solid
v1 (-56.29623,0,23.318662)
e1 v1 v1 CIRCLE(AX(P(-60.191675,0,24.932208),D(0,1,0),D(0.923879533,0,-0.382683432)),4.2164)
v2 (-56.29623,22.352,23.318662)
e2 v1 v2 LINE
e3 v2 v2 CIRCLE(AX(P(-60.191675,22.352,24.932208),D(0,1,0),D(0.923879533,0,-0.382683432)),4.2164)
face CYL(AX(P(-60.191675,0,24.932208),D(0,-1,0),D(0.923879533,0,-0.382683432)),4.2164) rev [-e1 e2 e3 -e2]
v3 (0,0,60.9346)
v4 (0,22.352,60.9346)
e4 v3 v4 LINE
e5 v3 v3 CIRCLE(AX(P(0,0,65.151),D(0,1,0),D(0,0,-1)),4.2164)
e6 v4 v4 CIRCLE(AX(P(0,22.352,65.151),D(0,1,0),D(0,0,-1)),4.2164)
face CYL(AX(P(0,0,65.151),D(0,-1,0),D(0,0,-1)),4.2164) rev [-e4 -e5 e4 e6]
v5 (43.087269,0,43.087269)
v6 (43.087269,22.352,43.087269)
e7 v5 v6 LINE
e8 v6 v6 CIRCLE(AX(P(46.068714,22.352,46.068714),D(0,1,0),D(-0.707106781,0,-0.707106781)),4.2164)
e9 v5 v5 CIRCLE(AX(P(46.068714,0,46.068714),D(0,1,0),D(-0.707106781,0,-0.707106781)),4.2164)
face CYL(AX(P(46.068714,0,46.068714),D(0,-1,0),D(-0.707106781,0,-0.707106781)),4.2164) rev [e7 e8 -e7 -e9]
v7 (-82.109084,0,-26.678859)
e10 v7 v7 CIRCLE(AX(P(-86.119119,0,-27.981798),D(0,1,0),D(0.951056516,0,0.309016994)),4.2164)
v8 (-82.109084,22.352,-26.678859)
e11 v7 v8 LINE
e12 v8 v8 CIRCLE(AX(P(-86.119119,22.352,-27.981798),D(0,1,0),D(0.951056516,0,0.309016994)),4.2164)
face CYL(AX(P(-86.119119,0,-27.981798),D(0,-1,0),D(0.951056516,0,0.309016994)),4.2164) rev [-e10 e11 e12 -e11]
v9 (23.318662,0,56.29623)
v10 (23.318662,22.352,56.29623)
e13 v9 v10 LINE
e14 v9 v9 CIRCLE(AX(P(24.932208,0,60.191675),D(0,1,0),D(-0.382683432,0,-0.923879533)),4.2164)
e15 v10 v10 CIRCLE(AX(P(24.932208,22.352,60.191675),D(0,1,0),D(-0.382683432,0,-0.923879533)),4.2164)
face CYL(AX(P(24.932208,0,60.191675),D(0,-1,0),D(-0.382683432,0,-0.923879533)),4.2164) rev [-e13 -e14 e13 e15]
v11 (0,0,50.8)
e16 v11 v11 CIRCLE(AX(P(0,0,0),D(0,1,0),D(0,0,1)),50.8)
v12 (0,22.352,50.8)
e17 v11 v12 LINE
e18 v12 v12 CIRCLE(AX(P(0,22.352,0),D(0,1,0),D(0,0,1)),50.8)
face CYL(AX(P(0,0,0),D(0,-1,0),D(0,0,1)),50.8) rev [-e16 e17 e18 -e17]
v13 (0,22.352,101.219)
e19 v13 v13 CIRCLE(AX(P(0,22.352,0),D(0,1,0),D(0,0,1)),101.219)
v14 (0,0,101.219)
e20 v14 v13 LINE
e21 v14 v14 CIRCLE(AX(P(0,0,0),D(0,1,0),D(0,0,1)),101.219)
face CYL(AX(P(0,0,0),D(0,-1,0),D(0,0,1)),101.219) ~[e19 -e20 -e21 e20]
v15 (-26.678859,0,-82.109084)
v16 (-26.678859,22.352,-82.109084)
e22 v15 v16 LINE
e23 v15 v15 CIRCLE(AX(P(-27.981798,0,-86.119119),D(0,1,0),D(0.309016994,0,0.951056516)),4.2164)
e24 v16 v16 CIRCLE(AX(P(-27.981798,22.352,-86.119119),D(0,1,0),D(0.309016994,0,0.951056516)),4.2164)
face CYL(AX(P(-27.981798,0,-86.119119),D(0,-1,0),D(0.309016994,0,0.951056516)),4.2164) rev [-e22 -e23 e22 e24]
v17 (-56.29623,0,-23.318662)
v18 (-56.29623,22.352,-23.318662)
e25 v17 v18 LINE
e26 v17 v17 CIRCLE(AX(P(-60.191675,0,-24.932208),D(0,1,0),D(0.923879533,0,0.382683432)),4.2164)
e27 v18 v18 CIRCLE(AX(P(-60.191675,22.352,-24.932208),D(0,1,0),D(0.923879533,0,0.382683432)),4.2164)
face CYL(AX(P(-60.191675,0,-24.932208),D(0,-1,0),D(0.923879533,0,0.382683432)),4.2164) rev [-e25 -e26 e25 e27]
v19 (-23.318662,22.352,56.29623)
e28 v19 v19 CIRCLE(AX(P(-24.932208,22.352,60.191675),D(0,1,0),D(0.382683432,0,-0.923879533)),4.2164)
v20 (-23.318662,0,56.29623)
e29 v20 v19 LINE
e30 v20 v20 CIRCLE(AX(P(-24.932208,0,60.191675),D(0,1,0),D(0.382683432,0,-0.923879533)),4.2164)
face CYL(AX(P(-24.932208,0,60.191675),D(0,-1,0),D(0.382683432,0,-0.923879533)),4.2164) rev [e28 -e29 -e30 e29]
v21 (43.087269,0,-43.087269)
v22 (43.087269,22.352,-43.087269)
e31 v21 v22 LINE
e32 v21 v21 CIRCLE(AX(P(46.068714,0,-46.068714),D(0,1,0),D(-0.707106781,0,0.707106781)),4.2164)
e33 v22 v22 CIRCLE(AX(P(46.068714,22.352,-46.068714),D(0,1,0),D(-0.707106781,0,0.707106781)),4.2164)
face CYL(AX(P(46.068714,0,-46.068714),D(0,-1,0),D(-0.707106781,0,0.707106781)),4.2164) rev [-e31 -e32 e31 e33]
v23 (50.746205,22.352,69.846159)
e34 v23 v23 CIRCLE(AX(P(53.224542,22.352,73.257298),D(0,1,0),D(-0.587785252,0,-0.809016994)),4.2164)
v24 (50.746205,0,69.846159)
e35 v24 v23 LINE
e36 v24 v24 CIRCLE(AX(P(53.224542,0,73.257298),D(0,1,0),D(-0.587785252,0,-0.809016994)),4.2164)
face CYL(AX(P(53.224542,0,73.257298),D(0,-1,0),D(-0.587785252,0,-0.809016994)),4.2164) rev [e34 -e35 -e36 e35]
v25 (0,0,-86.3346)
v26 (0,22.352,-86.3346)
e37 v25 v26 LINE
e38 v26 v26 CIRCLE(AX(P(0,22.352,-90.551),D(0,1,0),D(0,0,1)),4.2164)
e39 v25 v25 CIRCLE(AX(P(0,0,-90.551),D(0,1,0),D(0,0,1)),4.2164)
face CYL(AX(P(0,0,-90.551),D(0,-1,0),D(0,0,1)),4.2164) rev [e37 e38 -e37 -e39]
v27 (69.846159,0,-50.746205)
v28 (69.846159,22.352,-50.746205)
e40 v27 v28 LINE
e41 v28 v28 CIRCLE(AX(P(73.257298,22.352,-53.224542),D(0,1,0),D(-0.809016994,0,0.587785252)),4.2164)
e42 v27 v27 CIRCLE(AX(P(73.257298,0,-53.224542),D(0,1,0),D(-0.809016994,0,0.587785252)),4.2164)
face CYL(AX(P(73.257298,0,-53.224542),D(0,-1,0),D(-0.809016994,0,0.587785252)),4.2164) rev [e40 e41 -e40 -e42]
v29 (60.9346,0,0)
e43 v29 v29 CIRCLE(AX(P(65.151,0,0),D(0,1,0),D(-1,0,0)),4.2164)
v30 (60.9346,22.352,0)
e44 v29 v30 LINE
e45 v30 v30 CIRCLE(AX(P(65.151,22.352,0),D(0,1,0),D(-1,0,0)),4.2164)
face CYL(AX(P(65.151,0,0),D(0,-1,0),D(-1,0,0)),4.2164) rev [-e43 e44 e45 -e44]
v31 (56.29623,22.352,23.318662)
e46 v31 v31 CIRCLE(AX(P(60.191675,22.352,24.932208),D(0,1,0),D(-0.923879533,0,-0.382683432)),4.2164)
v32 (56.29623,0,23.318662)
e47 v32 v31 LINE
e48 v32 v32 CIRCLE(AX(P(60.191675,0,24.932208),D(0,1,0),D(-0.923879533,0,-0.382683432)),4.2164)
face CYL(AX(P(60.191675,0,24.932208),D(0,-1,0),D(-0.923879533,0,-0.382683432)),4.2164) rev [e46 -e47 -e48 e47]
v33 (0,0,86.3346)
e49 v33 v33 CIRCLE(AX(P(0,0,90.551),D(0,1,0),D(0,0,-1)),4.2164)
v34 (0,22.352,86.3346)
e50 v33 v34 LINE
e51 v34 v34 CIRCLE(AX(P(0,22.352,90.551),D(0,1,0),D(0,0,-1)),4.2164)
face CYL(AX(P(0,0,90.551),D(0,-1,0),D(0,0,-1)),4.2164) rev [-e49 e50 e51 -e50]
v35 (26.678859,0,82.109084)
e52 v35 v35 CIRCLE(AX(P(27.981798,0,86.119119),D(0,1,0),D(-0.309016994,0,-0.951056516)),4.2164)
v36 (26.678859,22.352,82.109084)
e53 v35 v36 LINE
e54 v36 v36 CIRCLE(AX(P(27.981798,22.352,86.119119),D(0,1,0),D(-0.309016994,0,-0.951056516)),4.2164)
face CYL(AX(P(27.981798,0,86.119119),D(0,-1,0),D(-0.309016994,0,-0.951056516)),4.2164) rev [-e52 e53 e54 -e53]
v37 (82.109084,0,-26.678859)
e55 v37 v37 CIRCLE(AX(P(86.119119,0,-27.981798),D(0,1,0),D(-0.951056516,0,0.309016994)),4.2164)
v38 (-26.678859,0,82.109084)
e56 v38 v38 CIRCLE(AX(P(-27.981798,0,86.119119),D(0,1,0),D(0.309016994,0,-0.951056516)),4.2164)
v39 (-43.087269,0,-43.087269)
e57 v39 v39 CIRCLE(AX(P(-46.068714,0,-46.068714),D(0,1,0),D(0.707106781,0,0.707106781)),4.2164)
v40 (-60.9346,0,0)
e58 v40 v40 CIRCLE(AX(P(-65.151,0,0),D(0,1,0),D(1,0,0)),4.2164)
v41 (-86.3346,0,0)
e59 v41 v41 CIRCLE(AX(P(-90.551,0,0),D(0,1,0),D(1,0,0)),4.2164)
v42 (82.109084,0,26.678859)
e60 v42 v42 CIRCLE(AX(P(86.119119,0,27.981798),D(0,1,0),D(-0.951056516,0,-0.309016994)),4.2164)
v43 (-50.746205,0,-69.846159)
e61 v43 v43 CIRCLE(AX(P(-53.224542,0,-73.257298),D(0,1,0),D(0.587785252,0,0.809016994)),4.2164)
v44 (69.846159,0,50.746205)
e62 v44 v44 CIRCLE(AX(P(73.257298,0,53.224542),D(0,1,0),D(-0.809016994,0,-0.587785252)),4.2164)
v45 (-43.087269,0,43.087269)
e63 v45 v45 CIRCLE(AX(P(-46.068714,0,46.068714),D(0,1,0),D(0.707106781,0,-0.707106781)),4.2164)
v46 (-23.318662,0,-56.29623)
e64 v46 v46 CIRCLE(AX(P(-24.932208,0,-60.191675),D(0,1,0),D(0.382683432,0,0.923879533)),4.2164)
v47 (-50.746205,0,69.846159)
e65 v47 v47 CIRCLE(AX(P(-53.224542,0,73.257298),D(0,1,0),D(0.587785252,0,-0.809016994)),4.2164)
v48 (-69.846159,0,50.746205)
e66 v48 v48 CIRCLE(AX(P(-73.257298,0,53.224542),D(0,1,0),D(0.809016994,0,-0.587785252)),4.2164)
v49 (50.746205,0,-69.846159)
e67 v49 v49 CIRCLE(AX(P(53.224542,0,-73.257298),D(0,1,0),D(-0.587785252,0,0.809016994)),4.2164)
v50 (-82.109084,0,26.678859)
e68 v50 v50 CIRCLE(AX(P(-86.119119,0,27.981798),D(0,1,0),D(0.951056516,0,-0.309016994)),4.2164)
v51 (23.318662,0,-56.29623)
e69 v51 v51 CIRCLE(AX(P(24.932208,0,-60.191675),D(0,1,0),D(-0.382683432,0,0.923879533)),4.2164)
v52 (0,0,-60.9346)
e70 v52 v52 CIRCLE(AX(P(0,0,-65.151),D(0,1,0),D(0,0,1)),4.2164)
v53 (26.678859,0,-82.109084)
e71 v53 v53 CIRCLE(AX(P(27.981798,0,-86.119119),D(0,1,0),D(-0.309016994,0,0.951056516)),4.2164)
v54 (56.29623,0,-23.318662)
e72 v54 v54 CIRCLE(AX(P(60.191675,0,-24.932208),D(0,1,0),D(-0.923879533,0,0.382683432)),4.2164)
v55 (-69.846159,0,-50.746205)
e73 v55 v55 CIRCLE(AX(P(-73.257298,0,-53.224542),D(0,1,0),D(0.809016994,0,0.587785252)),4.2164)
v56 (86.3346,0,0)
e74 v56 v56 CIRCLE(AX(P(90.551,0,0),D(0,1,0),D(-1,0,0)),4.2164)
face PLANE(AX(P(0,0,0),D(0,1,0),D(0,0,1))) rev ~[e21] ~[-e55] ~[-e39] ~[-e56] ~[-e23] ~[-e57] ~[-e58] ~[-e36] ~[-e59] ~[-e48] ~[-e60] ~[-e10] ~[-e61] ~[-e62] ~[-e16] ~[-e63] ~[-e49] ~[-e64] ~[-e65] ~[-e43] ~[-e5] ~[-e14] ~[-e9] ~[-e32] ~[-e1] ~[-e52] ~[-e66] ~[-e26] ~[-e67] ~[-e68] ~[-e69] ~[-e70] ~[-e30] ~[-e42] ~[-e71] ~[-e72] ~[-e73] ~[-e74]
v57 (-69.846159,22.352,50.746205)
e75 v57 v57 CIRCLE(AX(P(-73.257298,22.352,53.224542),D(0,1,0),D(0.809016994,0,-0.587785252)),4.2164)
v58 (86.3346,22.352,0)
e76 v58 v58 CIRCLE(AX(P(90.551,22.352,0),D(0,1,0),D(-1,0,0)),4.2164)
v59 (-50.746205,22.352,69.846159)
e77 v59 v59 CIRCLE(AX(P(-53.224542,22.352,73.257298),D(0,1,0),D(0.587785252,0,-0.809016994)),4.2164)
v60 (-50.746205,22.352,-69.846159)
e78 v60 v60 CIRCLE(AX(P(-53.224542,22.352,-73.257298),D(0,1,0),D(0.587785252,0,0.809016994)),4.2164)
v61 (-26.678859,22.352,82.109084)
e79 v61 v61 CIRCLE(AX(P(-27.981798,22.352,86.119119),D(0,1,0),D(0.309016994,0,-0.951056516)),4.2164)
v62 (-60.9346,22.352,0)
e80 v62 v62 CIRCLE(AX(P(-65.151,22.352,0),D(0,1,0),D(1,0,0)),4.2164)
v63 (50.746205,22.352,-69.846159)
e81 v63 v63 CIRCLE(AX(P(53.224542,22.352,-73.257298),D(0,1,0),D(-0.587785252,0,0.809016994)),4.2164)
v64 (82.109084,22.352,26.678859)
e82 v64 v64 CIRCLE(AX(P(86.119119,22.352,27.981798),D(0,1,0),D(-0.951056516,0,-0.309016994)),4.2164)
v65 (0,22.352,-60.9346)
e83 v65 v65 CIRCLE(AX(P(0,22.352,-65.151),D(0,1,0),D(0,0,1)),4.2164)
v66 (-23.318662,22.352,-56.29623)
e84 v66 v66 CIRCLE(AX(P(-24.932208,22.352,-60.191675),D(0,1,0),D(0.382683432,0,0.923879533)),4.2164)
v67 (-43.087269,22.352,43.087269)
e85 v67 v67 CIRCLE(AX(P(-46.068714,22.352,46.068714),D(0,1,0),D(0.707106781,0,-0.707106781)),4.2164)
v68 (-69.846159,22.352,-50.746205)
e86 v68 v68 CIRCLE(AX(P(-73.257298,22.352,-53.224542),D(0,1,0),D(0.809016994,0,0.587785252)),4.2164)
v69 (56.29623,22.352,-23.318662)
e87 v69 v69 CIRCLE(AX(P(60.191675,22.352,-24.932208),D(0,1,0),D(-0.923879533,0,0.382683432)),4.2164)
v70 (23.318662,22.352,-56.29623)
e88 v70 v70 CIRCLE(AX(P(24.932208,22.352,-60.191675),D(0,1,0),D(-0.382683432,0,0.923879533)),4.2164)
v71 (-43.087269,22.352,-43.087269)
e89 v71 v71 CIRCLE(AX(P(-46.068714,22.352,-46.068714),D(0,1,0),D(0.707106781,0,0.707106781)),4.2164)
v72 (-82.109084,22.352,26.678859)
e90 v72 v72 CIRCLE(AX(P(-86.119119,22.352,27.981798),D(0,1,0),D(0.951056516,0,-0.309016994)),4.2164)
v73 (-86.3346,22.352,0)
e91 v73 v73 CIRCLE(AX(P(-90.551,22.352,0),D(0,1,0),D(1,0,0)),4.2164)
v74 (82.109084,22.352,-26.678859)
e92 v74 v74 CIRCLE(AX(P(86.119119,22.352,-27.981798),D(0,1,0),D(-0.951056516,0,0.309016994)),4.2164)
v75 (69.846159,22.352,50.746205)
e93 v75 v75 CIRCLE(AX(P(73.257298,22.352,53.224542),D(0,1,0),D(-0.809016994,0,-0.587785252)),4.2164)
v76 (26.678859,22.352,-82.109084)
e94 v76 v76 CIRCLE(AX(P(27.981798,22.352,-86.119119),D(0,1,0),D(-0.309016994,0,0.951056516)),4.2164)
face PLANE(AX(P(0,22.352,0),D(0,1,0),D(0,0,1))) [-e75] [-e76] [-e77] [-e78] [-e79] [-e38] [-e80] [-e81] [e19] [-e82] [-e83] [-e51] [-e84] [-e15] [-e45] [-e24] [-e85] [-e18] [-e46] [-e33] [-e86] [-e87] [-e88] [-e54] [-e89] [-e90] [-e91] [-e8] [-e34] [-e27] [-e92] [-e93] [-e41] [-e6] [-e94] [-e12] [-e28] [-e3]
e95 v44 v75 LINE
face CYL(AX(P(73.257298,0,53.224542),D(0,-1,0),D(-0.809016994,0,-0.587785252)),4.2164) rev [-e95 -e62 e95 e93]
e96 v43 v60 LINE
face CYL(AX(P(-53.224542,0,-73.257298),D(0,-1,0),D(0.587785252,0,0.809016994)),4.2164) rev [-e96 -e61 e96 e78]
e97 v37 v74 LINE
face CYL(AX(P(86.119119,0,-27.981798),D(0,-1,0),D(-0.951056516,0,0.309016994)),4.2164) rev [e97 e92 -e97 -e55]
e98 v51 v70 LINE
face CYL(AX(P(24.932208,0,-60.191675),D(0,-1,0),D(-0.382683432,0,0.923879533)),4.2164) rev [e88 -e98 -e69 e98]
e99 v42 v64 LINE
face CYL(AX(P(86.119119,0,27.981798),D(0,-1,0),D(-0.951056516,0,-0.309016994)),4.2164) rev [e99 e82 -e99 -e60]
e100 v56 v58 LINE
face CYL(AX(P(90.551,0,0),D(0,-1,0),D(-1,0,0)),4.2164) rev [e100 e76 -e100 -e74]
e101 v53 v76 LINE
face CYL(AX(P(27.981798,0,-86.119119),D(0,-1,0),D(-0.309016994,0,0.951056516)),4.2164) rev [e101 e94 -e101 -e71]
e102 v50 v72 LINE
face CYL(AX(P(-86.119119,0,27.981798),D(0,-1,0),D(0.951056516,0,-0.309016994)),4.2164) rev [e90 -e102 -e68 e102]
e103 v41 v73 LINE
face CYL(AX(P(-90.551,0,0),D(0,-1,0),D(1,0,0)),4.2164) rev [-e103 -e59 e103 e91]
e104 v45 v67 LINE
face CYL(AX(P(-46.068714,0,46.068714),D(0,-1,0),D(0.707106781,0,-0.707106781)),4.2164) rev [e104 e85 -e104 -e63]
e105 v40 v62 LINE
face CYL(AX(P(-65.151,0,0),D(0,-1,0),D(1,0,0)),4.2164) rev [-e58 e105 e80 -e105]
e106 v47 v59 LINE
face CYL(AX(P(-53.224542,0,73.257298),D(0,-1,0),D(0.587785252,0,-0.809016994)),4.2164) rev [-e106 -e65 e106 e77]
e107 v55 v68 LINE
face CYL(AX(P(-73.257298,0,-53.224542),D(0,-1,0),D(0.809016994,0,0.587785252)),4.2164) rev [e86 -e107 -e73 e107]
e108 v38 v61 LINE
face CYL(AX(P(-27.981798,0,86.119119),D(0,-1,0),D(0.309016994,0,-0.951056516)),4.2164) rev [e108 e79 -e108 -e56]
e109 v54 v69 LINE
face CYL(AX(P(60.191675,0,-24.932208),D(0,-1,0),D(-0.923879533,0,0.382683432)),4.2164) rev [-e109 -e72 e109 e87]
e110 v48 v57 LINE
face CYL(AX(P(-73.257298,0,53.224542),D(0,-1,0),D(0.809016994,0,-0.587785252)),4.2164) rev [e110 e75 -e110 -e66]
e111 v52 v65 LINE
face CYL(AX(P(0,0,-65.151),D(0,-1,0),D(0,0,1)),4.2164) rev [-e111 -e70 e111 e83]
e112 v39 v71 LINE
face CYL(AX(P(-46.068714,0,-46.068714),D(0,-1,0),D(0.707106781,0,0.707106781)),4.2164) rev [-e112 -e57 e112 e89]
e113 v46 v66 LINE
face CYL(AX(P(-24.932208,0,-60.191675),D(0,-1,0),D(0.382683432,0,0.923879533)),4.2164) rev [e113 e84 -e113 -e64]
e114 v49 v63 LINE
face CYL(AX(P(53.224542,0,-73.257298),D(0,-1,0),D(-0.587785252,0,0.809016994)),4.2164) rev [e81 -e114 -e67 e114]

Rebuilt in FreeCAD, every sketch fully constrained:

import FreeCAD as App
import Part
import Sketcher
Q = App.Units.Quantity

doc = App.newDocument("Part")
body = doc.addObject("PartDesign::Body", "Body")

# Sketch on XZ plane
sketch1 = body.newObject("Sketcher::SketchObject", "Sketch")
sketch1.AttachmentSupport = (doc.getObject("XZ_Plane"), [""])
sketch1.MapMode = "FlatFace"
sketch1.addGeometry(Part.Circle(App.Vector(0, 0, 0), App.Vector(0, 0, 1), 101), False)
sketch1.addConstraint([
    Sketcher.Constraint("Coincident", 0, 3, -1, 1),
    Sketcher.Constraint("Diameter", 0, Q("7.97 in")),
])
pad1 = body.newObject("PartDesign::Pad", "Pad")
pad1.Profile = sketch1
pad1.Length = Q("0.88 in")
pad1.Reversed = True

# Sketch on XZ plane
sketch2 = body.newObject("Sketcher::SketchObject", "Sketch001")
sketch2.AttachmentSupport = (doc.getObject("XZ_Plane"), [""])
sketch2.MapMode = "FlatFace"
sketch2.addGeometry(Part.Circle(App.Vector(0, 0, 0), App.Vector(0, 0, 1), 51), False)
sketch2.addConstraint([
    Sketcher.Constraint("Coincident", 0, 3, -1, 1),
    Sketcher.Constraint("Diameter", 0, Q("4 in")),
])
pocket1 = body.newObject("PartDesign::Pocket", "Pocket")
pocket1.Profile = sketch2
pocket1.Length = Q("0.88 in")

# Sketch on XZ plane
sketch3 = body.newObject("Sketcher::SketchObject", "Sketch002")
sketch3.AttachmentSupport = (doc.getObject("XZ_Plane"), [""])
sketch3.MapMode = "FlatFace"
sketch3.addGeometry(Part.Circle(App.Vector(0, -65.2, 0), App.Vector(0, 0, 1), 4.2), False)
sketch3.addConstraint([
    Sketcher.Constraint("PointOnObject", 0, 3, -2),
    Sketcher.Constraint("Diameter", 0, Q("0.332 in")),
    Sketcher.Constraint("DistanceY", 0, 3, -1, 1, Q("2.565 in")),
])
pocket2 = body.newObject("PartDesign::Pocket", "Pocket001")
pocket2.Profile = sketch3
pocket2.Length = Q("0.88 in")
doc.recompute()

polarpattern = body.newObject("PartDesign::PolarPattern", "PolarPattern")
polarpattern.Originals = [pocket2]
polarpattern.Axis = (doc.getObject("Y_Axis"), [""])
polarpattern.Angle = 360
polarpattern.Occurrences = 16
body.Tip = polarpattern

# Sketch on XZ plane
sketch4 = body.newObject("Sketcher::SketchObject", "Sketch003")
sketch4.AttachmentSupport = (doc.getObject("XZ_Plane"), [""])
sketch4.MapMode = "FlatFace"
sketch4.addGeometry(Part.Circle(App.Vector(0, -90.6, 0), App.Vector(0, 0, 1), 4.2), False)
sketch4.addConstraint([
    Sketcher.Constraint("PointOnObject", 0, 3, -2),
    Sketcher.Constraint("Diameter", 0, Q("0.332 in")),
    Sketcher.Constraint("DistanceY", 0, 3, -1, 1, Q("3.565 in")),
])
pocket3 = body.newObject("PartDesign::Pocket", "Pocket002")
pocket3.Profile = sketch4
pocket3.Length = Q("0.88 in")
doc.recompute()

polarpattern2 = body.newObject("PartDesign::PolarPattern", "PolarPattern001")
polarpattern2.Originals = [pocket3]
polarpattern2.Axis = (doc.getObject("Y_Axis"), [""])
polarpattern2.Angle = 360
polarpattern2.Occurrences = 20
body.Tip = polarpattern2

doc.recompute()
